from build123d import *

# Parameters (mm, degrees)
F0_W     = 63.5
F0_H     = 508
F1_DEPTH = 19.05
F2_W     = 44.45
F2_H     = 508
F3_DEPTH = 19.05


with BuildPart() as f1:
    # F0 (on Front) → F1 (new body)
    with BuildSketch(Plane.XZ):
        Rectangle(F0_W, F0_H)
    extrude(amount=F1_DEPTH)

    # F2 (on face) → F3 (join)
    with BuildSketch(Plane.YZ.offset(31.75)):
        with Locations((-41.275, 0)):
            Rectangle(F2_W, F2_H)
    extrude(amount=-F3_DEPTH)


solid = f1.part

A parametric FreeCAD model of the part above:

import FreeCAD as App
import Part
import Sketcher
Q = App.Units.Quantity


def add_polygon(sketch, points):
    """Adds a closed chain of lines whose ends are joined by coincident constraints."""
    first, n = sketch.GeometryCount, len(points)
    for a, b in zip(points, points[1:] + points[:1]):
        sketch.addGeometry(Part.LineSegment(App.Vector(*a, 0), App.Vector(*b, 0)), False)
    for i in range(n):
        sketch.addConstraint(Sketcher.Constraint("Coincident", first + i, 2, first + (i + 1) % n, 1))

doc = App.newDocument("Part")
body = doc.addObject("PartDesign::Body", "Body")

# Sketch on XZ plane
sketch1 = body.newObject("Sketcher::SketchObject", "Sketch")
sketch1.AttachmentSupport = (doc.getObject("XZ_Plane"), [""])
sketch1.MapMode = "FlatFace"
add_polygon(sketch1, [(-31.75, 254), (-31.75, -254), (31.75, -254), (31.75, 254)])  # lines 0-3
sketch1.addConstraint(Sketcher.Constraint("Vertical", 0))
sketch1.addConstraint(Sketcher.Constraint("Horizontal", 1))
sketch1.addConstraint(Sketcher.Constraint("Vertical", 2))
sketch1.addConstraint(Sketcher.Constraint("Horizontal", 3))
sketch1.addConstraint(Sketcher.Constraint("Symmetric", 0, 2, 2, 2, -1, 1))
sketch1.addConstraint(Sketcher.Constraint("DistanceY", 0, 2, 0, 1, Q("20 in")))
sketch1.addConstraint(Sketcher.Constraint("DistanceX", 1, 1, 1, 2, Q("2.5 in")))
pad1 = body.newObject("PartDesign::Pad", "Pad")
pad1.Profile = sketch1
pad1.Length = Q("0.75 in")

# Sketch on YZ plane
sketch2 = body.newObject("Sketcher::SketchObject", "Sketch001")
sketch2.AttachmentSupport = (doc.getObject("YZ_Plane"), [""])
sketch2.MapMode = "FlatFace"
sketch2.AttachmentOffset = App.Placement(App.Vector(0, 0, 1.25 * 25.4), App.Rotation())
add_polygon(sketch2, [(-63.5, 254), (-63.5, -254), (-19.05, -254), (-19.05, 254)])  # lines 0-3
sketch2.addConstraint(Sketcher.Constraint("Vertical", 0))
sketch2.addConstraint(Sketcher.Constraint("Horizontal", 1))
sketch2.addConstraint(Sketcher.Constraint("Vertical", 2))
sketch2.addConstraint(Sketcher.Constraint("Horizontal", 3))
sketch2.addConstraint(Sketcher.Constraint("DistanceY", 0, 2, 0, 1, Q("20 in")))
sketch2.addConstraint(Sketcher.Constraint("DistanceY", 0, 2, -1, 1, Q("10 in")))
sketch2.addConstraint(Sketcher.Constraint("DistanceX", 1, 1, 1, 2, Q("1.75 in")))
sketch2.addConstraint(Sketcher.Constraint("DistanceX", 0, 2, -1, 1, Q("2.5 in")))
pad2 = body.newObject("PartDesign::Pad", "Pad001")
pad2.Profile = sketch2
pad2.Length = Q("0.75 in")
pad2.Reversed = True

doc.recompute()
